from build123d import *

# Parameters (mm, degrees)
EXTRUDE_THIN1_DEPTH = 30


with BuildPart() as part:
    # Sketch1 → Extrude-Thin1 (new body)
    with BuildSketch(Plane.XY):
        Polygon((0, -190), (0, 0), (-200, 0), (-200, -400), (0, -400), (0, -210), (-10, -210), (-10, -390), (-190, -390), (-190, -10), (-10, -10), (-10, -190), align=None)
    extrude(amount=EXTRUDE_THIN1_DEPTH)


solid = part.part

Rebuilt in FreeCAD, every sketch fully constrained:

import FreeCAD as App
import Part
import Sketcher
Q = App.Units.Quantity


def add_polygon(sketch, points):
    """Adds a closed chain of lines whose ends are joined by coincident constraints."""
    first, n = sketch.GeometryCount, len(points)
    for a, b in zip(points, points[1:] + points[:1]):
        sketch.addGeometry(Part.LineSegment(App.Vector(*a, 0), App.Vector(*b, 0)), False)
    for i in range(n):
        sketch.addConstraint(Sketcher.Constraint("Coincident", first + i, 2, first + (i + 1) % n, 1))

doc = App.newDocument("Part")
body = doc.addObject("PartDesign::Body", "Body")

sketch1 = doc.addObject("Sketcher::SketchObject", "Sketch")
body.addObject(sketch1)
sketch1.AttachmentSupport = (doc.XY_Plane, [""])
sketch1.MapMode = "FlatFace"
add_polygon(sketch1, [(0, -190), (0, 0), (-200, 0), (-200, -400), (0, -400), (0, -210), (-10, -210), (-10, -390), (-190, -390), (-190, -10), (-10, -10), (-10, -190)])
sketch1.addConstraint([
    Sketcher.Constraint("Vertical", 0),
    Sketcher.Constraint("Horizontal", 1),
    Sketcher.Constraint("Vertical", 2),
    Sketcher.Constraint("Horizontal", 3),
    Sketcher.Constraint("Vertical", 4),
    Sketcher.Constraint("Horizontal", 5),
    Sketcher.Constraint("Vertical", 6),
    Sketcher.Constraint("Horizontal", 7),
    Sketcher.Constraint("Vertical", 8),
    Sketcher.Constraint("Horizontal", 9),
    Sketcher.Constraint("Vertical", 10),
    Sketcher.Constraint("Horizontal", 11),
    Sketcher.Constraint("Coincident", 0, 2, -1, 1),
    Sketcher.Constraint("PointOnObject", 3, 2, -2),
    Sketcher.Constraint("Vertical", 6, 2, 9, 2),
    Sketcher.Constraint("Equal", 0, 4),
    Sketcher.Constraint("Equal", 9, 6),
    Sketcher.Constraint("Equal", 6, 10),
    Sketcher.Constraint("DistanceX", 1, 2, 1, 1, Q("200 mm")),
    Sketcher.Constraint("DistanceX", 5, 2, 5, 1, Q("10 mm")),
    Sketcher.Constraint("DistanceX", 7, 2, 7, 1, Q("180 mm")),
    Sketcher.Constraint("DistanceY", 0, 1, 0, 2, Q("190 mm")),
    Sketcher.Constraint("DistanceY", 2, 2, 2, 1, Q("400 mm")),
])
pad1 = doc.addObject("PartDesign::Pad", "Pad")
body.addObject(pad1)
pad1.Profile = sketch1
pad1.Length = 30

doc.recompute()
